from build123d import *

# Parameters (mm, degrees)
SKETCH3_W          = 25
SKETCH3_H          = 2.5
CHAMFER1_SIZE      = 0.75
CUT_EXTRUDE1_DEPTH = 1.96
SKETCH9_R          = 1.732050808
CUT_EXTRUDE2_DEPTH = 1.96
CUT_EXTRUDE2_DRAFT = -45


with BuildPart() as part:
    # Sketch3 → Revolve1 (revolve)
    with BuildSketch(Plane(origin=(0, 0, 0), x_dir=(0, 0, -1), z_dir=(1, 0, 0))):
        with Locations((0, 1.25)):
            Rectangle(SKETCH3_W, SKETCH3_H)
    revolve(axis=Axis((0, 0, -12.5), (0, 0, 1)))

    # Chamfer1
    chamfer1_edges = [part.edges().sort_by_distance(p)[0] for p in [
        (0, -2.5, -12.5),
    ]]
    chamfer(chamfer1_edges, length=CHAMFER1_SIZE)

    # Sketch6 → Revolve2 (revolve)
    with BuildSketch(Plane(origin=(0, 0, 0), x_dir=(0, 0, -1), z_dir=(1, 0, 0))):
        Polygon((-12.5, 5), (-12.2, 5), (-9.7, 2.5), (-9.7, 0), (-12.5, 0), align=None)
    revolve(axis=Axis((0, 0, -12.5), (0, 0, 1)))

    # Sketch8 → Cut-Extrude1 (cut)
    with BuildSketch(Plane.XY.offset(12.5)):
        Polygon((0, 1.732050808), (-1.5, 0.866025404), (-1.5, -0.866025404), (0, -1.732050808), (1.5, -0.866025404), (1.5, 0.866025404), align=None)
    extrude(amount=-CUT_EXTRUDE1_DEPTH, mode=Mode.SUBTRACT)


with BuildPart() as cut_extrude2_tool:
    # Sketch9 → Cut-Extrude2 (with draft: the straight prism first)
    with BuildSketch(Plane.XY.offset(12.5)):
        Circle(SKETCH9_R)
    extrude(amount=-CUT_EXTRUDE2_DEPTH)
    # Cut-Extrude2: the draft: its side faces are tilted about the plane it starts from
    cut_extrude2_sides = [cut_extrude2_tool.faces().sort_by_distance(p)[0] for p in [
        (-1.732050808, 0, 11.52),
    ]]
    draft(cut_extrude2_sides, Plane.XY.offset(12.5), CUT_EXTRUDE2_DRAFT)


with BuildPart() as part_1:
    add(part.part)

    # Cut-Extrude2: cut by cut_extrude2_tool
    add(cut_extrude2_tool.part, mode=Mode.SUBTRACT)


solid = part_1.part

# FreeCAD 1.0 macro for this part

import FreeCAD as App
import Part
import Sketcher
from FreeCAD import Vector
Q = App.Units.Quantity


def edges_at(feature, points):
    """Names of the edges that pass closest to the given points."""
    edges = feature.Shape.Edges
    near = lambda p: min(range(len(edges)), key=lambda i: edges[i].distToShape(Part.Vertex(*p))[0])
    return sorted({f"Edge{near(p) + 1}" for p in points})


def faces_at(feature, points):
    """Names of the faces that lie closest to the given points."""
    faces = feature.Shape.Faces
    near = lambda p: min(range(len(faces)), key=lambda i: faces[i].distToShape(Part.Vertex(*p))[0])
    return sorted({f"Face{near(p) + 1}" for p in points})


def add_polygon(sketch, points):
    """Adds a closed chain of lines whose ends are joined by coincident constraints."""
    first, n = sketch.GeometryCount, len(points)
    for a, b in zip(points, points[1:] + points[:1]):
        sketch.addGeometry(Part.LineSegment(App.Vector(*a, 0), App.Vector(*b, 0)), False)
    for i in range(n):
        sketch.addConstraint(Sketcher.Constraint("Coincident", first + i, 2, first + (i + 1) % n, 1))

doc = App.newDocument("Part")
params = doc.addObject("Spreadsheet::Sheet", "Params")
for row, (alias, value) in enumerate([
    ("sketch1_height", "25 mm"),
    ("sketch1_width", "2.5 mm"),
    ("revolution_angle", "360 deg"),
    ("chamfer_size", "0.75 mm"),
    ("sketch2_width", "5 mm"),
    ("sketch2_width2", "2.5 mm"),
    ("sketch2_height", "0.3 mm"),
    ("revolution2_angle", "360 deg"),
    ("pocket1_length", "1.96 mm"),
    ("pad1_length", "1.96 mm"),
    ("draft_angle", "45 deg"),
], start=1):
    params.set(f"A{row}", alias)
    params.set(f"B{row}", "=" + value)
    params.setAlias(f"B{row}", alias)

body = doc.addObject("PartDesign::Body", "Body")

sketch1 = body.newObject("Sketcher::SketchObject", "Sketch")
sketch1.AttachmentSupport = (doc.getObject("YZ_Plane"), [""])
sketch1.MapMode = "FlatFace"
add_polygon(sketch1, [(2.5, 12.5), (0, 12.5), (0, -12.5), (2.5, -12.5)])
sketch1.addConstraint(Sketcher.Constraint("Horizontal", 0))
sketch1.addConstraint(Sketcher.Constraint("Vertical", 1))
sketch1.addConstraint(Sketcher.Constraint("Horizontal", 2))
sketch1.addConstraint(Sketcher.Constraint("Vertical", 3))
sketch1.addConstraint(Sketcher.Constraint("Symmetric", 0, 2, 1, 2, -1, 1))
sketch1.addConstraint(Sketcher.Constraint("DistanceY", 1, 2, 1, 1, 25.0))
sketch1.addConstraint(Sketcher.Constraint("DistanceX", 0, 2, 0, 1, 2.5))
sketch1.setExpression("Constraints[9]", "Params.sketch1_height")
sketch1.setExpression("Constraints[10]", "Params.sketch1_width")
revolution = body.newObject("PartDesign::Revolution", "Revolution")
revolution.Profile = sketch1
revolution.ReferenceAxis = (sketch1, ["V_Axis"])
revolution.setExpression("Angle", "Params.revolution_angle")
doc.recompute()

chamfer = body.newObject("PartDesign::Chamfer", "Chamfer")
chamfer.Base = (revolution, edges_at(revolution, [(0, -2.5, -12.5)]))
chamfer.setExpression("Size", "Params.chamfer_size")

sketch2 = body.newObject("Sketcher::SketchObject", "Sketch001")
sketch2.AttachmentSupport = (doc.getObject("YZ_Plane"), [""])
sketch2.MapMode = "FlatFace"
add_polygon(sketch2, [(5, 12.2), (5, 12.5), (0, 12.5), (0, 9.7), (2.5, 9.7)])
sketch2.addConstraint(Sketcher.Constraint("Vertical", 0))
sketch2.addConstraint(Sketcher.Constraint("Horizontal", 1))
sketch2.addConstraint(Sketcher.Constraint("Vertical", 2))
sketch2.addConstraint(Sketcher.Constraint("Horizontal", 3))
sketch2.addConstraint(Sketcher.Constraint("PointOnObject", 1, 2, -2))
sketch2.addConstraint(Sketcher.Constraint("DistanceX", 1, 2, 1, 1, 5.0))
sketch2.addConstraint(Sketcher.Constraint("Angle", 4, Q("45 deg")))
sketch2.addConstraint(Sketcher.Constraint("DistanceX", 3, 1, 3, 2, 2.5))
sketch2.addConstraint(Sketcher.Constraint("DistanceY", 0, 1, 0, 2, 0.3))
sketch2.addConstraint(Sketcher.Constraint("DistanceY", -1, 1, 0, 2, 12.5))
sketch2.setExpression("Constraints[10]", "Params.sketch2_width")
sketch2.setExpression("Constraints[12]", "Params.sketch2_width2")
sketch2.setExpression("Constraints[13]", "Params.sketch2_height")
revolution2 = body.newObject("PartDesign::Revolution", "Revolution001")
revolution2.Profile = sketch2
revolution2.ReferenceAxis = (sketch2, ["V_Axis"])
revolution2.setExpression("Angle", "Params.revolution2_angle")

sketch3 = body.newObject("Sketcher::SketchObject", "Sketch002")
sketch3.AttachmentSupport = (doc.getObject("XY_Plane"), [""])
sketch3.MapMode = "FlatFace"
sketch3.AttachmentOffset = App.Placement(Vector(0, 0, 12.5), App.Rotation())
add_polygon(sketch3, [(0, 1.732051), (-1.5, 0.866025), (-1.5, -0.866025), (0, -1.732051), (1.5, -0.866025), (1.5, 0.866025)])
sketch3.addConstraint(Sketcher.Constraint("Vertical", 1))
sketch3.addConstraint(Sketcher.Constraint("Vertical", 4))
sketch3.addConstraint(Sketcher.Constraint("Symmetric", 0, 2, 3, 2, -1, 1))
sketch3.addConstraint(Sketcher.Constraint("Symmetric", 2, 2, 5, 2, -1, 1))
sketch3.addConstraint(Sketcher.Constraint("PointOnObject", 2, 2, -2))
sketch3.addConstraint(Sketcher.Constraint("Parallel", 2, 5))
sketch3.addConstraint(Sketcher.Constraint("Horizontal", 1, 2, 3, 2))
sketch3.addConstraint(Sketcher.Constraint("Angle", 0, Q("-150 deg")))
sketch3.addConstraint(Sketcher.Constraint("DistanceX", 1, 2, 3, 2, 3.0))
sketch3.addConstraint(Sketcher.Constraint("DistanceY", 1, 2, 1, 1, 1.732051))
pocket1 = body.newObject("PartDesign::Pocket", "Pocket")
pocket1.Profile = sketch3
pocket1.setExpression("Length", "Params.pocket1_length")
body2 = doc.addObject("PartDesign::Body", "Body001")

sketch4 = body2.newObject("Sketcher::SketchObject", "Sketch003")
sketch4.AttachmentSupport = (doc.getObject("XY_Plane001"), [""])
sketch4.MapMode = "FlatFace"
sketch4.AttachmentOffset = App.Placement(Vector(0, 0, 12.5), App.Rotation())
sketch4.addGeometry(Part.Circle(Vector(0, 0, 0), Vector(0, 0, 1), 1.732051), False)
sketch4.addConstraint(Sketcher.Constraint("Coincident", 0, 3, -1, 1))
sketch4.addConstraint(Sketcher.Constraint("Diameter", 0, 3.464102))
pad1 = body2.newObject("PartDesign::Pad", "Pad")
pad1.Profile = sketch4
pad1.setExpression("Length", "Params.pad1_length")
pad1.Reversed = True
doc.recompute()

datumplane = body2.newObject("PartDesign::Plane", "DatumPlane")
datumplane.AttachmentSupport = (doc.getObject("XY_Plane001"), [""])
datumplane.MapMode = "FlatFace"
datumplane.AttachmentOffset = App.Placement(Vector(0, 0, 12.5), App.Rotation())
draft = body2.newObject("PartDesign::Draft", "Draft")
draft.Base = (pad1, faces_at(pad1, [(-1.732, 0, 11.52)]))
draft.NeutralPlane = (datumplane, [""])
draft.setExpression("Angle", "Params.draft_angle")
draft.Reversed = True
doc.recompute()

boolean = body.newObject("PartDesign::Boolean", "Boolean")
boolean.Type = "Cut"
boolean.addObjects([body2])

doc.recompute()
